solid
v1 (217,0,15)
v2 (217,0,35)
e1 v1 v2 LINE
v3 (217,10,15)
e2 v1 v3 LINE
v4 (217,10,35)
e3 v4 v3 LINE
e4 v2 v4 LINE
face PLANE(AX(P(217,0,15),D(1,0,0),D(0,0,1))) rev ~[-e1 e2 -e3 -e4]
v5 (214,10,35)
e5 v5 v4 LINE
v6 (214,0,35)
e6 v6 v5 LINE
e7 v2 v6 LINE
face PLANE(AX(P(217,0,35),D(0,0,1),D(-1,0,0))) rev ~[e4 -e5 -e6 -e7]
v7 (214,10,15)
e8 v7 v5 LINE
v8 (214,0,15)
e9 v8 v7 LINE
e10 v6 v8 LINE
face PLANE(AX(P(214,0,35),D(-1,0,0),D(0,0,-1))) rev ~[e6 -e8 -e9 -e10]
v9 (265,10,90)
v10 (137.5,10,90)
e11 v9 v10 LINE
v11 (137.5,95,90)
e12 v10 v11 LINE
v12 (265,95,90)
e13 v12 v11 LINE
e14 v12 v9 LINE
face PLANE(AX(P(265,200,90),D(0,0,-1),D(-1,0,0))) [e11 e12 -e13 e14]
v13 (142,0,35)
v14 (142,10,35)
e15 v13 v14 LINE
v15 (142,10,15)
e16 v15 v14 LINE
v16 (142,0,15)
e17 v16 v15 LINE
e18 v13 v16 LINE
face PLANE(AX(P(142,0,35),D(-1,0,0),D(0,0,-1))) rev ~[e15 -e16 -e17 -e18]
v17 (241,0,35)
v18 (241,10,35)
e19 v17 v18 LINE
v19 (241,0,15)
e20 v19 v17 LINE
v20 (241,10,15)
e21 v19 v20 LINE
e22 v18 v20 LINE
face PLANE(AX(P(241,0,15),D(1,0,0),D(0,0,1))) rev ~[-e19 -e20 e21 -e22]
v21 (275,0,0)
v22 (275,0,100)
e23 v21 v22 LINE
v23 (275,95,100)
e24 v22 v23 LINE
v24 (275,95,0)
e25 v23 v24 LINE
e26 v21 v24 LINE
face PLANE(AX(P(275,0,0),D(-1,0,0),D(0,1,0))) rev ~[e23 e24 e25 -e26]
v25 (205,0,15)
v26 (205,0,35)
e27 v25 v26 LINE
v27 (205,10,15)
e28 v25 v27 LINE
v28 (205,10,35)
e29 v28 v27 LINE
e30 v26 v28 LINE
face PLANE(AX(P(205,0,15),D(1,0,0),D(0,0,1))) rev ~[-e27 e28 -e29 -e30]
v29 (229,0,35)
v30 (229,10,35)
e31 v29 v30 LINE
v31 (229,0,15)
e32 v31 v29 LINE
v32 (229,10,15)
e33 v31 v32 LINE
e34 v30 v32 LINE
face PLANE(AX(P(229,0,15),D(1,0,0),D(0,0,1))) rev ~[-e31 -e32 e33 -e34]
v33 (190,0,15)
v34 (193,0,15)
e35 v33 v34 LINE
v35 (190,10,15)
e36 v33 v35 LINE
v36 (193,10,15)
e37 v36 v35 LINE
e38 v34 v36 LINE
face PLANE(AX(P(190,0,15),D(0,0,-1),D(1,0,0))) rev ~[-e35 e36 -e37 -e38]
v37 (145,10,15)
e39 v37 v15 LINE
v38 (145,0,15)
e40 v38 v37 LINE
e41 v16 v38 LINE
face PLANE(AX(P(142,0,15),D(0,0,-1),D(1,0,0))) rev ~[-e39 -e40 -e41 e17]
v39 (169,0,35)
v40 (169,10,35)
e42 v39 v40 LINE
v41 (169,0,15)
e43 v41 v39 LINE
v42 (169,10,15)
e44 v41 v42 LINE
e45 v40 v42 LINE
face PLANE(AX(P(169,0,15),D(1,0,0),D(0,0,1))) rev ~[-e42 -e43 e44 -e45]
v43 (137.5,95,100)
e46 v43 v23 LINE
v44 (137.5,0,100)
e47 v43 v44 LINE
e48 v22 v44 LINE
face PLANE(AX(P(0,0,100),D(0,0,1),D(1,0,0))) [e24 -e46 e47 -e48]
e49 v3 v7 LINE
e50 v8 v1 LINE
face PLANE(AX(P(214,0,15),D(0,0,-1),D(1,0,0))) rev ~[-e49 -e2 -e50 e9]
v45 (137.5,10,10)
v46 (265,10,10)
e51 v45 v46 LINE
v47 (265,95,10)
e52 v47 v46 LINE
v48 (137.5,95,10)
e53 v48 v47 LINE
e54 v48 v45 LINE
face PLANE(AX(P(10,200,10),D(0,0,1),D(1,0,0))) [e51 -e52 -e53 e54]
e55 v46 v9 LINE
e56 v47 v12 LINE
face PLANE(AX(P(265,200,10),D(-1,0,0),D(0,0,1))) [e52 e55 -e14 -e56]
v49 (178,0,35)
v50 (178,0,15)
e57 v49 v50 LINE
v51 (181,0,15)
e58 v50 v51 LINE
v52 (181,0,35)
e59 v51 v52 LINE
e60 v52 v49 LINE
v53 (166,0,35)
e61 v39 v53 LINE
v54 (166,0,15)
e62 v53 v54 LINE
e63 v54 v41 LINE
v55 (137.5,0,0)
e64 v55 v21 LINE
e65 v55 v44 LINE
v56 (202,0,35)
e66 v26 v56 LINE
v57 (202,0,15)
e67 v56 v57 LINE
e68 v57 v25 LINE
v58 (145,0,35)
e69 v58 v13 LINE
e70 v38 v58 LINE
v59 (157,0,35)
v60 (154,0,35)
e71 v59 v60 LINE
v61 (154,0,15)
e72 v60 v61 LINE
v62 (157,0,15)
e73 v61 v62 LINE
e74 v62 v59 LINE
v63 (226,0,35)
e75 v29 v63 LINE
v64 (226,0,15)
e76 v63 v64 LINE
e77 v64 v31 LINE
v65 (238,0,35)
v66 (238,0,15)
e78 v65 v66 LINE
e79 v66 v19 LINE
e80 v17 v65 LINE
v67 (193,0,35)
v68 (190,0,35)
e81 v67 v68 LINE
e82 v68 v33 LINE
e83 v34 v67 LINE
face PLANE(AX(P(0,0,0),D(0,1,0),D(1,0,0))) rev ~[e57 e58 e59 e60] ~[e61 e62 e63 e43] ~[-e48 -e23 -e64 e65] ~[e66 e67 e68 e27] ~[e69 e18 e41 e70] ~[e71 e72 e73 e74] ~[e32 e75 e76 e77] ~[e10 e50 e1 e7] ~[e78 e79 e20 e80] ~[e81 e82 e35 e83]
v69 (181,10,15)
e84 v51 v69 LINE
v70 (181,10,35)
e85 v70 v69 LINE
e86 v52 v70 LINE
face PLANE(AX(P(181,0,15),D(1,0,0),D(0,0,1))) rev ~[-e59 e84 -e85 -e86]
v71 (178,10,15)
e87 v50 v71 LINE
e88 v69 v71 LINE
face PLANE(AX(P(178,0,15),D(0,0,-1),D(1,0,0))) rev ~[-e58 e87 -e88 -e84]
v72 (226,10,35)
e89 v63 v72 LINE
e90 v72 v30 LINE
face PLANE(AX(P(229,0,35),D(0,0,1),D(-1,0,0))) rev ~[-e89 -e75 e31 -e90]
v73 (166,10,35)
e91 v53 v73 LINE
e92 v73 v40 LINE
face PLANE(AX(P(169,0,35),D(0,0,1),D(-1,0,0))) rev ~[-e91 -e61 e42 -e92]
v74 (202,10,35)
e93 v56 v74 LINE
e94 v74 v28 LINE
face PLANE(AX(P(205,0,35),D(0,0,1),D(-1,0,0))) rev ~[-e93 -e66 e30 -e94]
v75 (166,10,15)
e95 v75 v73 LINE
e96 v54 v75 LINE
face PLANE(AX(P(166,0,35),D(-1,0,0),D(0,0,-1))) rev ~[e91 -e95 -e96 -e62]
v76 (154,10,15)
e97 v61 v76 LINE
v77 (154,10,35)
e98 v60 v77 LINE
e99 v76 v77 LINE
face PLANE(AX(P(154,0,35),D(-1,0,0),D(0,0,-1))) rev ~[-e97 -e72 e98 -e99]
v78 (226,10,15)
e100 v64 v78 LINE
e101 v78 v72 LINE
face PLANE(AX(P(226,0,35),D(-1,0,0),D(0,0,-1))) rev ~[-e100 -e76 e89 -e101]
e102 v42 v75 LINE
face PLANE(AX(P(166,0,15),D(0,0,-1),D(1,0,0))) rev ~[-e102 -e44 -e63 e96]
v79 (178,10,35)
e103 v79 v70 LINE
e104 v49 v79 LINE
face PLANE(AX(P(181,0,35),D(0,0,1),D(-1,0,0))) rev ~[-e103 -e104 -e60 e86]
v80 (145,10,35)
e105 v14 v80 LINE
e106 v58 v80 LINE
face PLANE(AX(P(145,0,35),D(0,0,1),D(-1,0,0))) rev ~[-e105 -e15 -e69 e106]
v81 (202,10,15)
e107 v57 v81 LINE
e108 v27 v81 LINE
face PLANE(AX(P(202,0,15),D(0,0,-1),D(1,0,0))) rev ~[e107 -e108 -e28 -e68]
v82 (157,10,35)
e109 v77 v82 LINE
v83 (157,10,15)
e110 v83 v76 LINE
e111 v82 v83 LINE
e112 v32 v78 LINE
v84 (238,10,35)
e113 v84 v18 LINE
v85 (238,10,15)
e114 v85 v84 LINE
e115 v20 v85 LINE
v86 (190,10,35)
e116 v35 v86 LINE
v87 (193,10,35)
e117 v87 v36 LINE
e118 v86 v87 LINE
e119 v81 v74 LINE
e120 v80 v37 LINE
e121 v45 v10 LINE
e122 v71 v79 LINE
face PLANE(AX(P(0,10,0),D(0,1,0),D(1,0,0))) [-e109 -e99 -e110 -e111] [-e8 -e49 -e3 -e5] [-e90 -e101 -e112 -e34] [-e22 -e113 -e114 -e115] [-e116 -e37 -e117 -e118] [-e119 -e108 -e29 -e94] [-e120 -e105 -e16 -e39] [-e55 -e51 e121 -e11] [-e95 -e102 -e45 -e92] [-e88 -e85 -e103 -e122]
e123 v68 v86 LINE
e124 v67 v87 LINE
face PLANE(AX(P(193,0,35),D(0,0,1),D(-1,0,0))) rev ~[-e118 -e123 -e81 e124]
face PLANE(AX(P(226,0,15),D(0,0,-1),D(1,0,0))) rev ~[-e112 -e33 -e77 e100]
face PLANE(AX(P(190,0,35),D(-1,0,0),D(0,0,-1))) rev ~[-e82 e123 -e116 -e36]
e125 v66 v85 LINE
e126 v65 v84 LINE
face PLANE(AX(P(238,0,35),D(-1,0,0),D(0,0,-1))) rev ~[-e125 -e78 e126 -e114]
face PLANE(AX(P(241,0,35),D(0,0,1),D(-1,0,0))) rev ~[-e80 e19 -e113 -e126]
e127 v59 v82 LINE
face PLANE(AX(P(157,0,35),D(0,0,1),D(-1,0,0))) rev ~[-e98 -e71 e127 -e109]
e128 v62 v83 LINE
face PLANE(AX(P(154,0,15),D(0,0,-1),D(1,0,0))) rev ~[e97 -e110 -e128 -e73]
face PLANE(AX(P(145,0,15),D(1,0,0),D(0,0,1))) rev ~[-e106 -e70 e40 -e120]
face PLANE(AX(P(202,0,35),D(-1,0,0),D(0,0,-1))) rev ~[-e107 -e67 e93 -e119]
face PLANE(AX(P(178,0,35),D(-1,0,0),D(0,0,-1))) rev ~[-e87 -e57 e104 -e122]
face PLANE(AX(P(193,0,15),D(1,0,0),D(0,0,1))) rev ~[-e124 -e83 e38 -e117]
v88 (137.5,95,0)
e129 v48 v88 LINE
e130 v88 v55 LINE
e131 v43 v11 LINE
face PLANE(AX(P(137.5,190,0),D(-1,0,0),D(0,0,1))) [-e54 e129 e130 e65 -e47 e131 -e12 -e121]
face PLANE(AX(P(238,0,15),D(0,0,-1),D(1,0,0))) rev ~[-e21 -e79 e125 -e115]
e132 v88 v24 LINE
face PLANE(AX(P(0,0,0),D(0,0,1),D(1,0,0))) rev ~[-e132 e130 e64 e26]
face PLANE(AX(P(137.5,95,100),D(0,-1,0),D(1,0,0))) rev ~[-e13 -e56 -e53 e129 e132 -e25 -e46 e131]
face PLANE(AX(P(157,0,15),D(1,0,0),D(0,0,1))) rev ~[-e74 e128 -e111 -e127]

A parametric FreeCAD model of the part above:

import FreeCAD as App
import Part
import Sketcher


def add_polygon(sketch, points):
    """Adds a closed chain of lines whose ends are joined by coincident constraints."""
    first, n = sketch.GeometryCount, len(points)
    for a, b in zip(points, points[1:] + points[:1]):
        sketch.addGeometry(Part.LineSegment(App.Vector(*a, 0), App.Vector(*b, 0)), False)
    for i in range(n):
        sketch.addConstraint(Sketcher.Constraint("Coincident", first + i, 2, first + (i + 1) % n, 1))

doc = App.newDocument("Part")
body = doc.addObject("PartDesign::Body", "Body")

# Sketch on XY plane
sketch1 = doc.addObject("Sketcher::SketchObject", "Sketch")
body.addObject(sketch1)
sketch1.AttachmentSupport = (doc.XY_Plane, [""])
sketch1.MapMode = "FlatFace"
add_polygon(sketch1, [(0, 200), (0, 0), (275, 0), (275, 200)])  # lines 0-3
sketch1.addConstraint([
    Sketcher.Constraint("Vertical", 0),
    Sketcher.Constraint("Horizontal", 1),
    Sketcher.Constraint("Vertical", 2),
    Sketcher.Constraint("Horizontal", 3),
    Sketcher.Constraint("Coincident", 0, 2, -1, 1),
    Sketcher.Constraint("DistanceX", 1, 1, 1, 2, 275.0),
    Sketcher.Constraint("DistanceY", 0, 2, 0, 1, 200.0),
])
pad1 = doc.addObject("PartDesign::Pad", "Pad")
body.addObject(pad1)
pad1.Profile = sketch1
pad1.Length = 20

# Sketch on XY plane
sketch2 = doc.addObject("Sketcher::SketchObject", "Sketch001")
body.addObject(sketch2)
sketch2.AttachmentSupport = (doc.XY_Plane, [""])
sketch2.MapMode = "FlatFace"
sketch2.AttachmentOffset = App.Placement(App.Vector(0, 0, 20), App.Rotation())
add_polygon(sketch2, [(0, 0), (275, 0), (275, 200), (0, 200)])  # lines 0-3
sketch2.addConstraint([
    Sketcher.Constraint("Horizontal", 0),
    Sketcher.Constraint("Vertical", 1),
    Sketcher.Constraint("Horizontal", 2),
    Sketcher.Constraint("Vertical", 3),
    Sketcher.Constraint("Coincident", 3, 2, -1, 1),
    Sketcher.Constraint("DistanceX", 0, 1, 0, 2, 275.0),
    Sketcher.Constraint("DistanceY", 1, 1, 1, 2, 200.0),
])
pad2 = doc.addObject("PartDesign::Pad", "Pad001")
body.addObject(pad2)
pad2.Profile = sketch2
pad2.Length = 80

# Sketch on XZ plane
sketch3 = doc.addObject("Sketcher::SketchObject", "Sketch002")
body.addObject(sketch3)
sketch3.AttachmentSupport = (doc.XZ_Plane, [""])
sketch3.MapMode = "FlatFace"
sketch3.addGeometry(Part.Circle(App.Vector(47.5, 50, 0), App.Vector(0, 0, 1), 17.5), False)
sketch3.addConstraint([
    Sketcher.Constraint("Diameter", 0, 35.0),
    Sketcher.Constraint("DistanceY", -1, 1, 0, 3, 50.0),
    Sketcher.Constraint("DistanceX", -1, 1, 0, 3, 47.5),
])
pocket1 = doc.addObject("PartDesign::Pocket", "Pocket")
body.addObject(pocket1)
pocket1.Profile = sketch3
pocket1.Length = 100

# Sketch on XZ plane
sketch4 = doc.addObject("Sketcher::SketchObject", "Sketch003")
body.addObject(sketch4)
sketch4.AttachmentSupport = (doc.XZ_Plane, [""])
sketch4.MapMode = "FlatFace"
sketch4.AttachmentOffset = App.Placement(App.Vector(0, 0, -200), App.Rotation())
add_polygon(sketch4, [(10, 90), (265, 90), (265, 10), (10, 10)])  # lines 0-3
sketch4.addConstraint([
    Sketcher.Constraint("Horizontal", 0),
    Sketcher.Constraint("Vertical", 1),
    Sketcher.Constraint("Horizontal", 2),
    Sketcher.Constraint("Vertical", 3),
    Sketcher.Constraint("DistanceY", -1, 1, 1, 2, 10.0),
    Sketcher.Constraint("DistanceX", -1, 1, 2, 2, 10.0),
    Sketcher.Constraint("DistanceX", 0, 1, 0, 2, 255.0),
    Sketcher.Constraint("DistanceY", 1, 2, 1, 1, 80.0),
])
pocket2 = doc.addObject("PartDesign::Pocket", "Pocket001")
body.addObject(pocket2)
pocket2.Profile = sketch4
pocket2.Length = 190
pocket2.Reversed = True

# Sketch on YZ plane
sketch5 = doc.addObject("Sketcher::SketchObject", "Sketch004")
body.addObject(sketch5)
sketch5.AttachmentSupport = (doc.YZ_Plane, [""])
sketch5.MapMode = "FlatFace"
add_polygon(sketch5, [(200, 100), (200, 0), (190, 0), (190, 100)])  # lines 0-3
sketch5.addConstraint([
    Sketcher.Constraint("Vertical", 0),
    Sketcher.Constraint("Horizontal", 1),
    Sketcher.Constraint("Vertical", 2),
    Sketcher.Constraint("Horizontal", 3),
    Sketcher.Constraint("PointOnObject", 0, 2, -1),
    Sketcher.Constraint("DistanceX", 1, 2, 1, 1, 10.0),
    Sketcher.Constraint("DistanceY", 0, 2, 0, 1, 100.0),
    Sketcher.Constraint("DistanceX", -1, 1, 0, 2, 200.0),
])
pocket3 = doc.addObject("PartDesign::Pocket", "Pocket002")
body.addObject(pocket3)
pocket3.Profile = sketch5
pocket3.Type = "ThroughAll"
pocket3.Reversed = True

# Sketch on XZ plane
sketch6 = doc.addObject("Sketcher::SketchObject", "Sketch005")
body.addObject(sketch6)
sketch6.AttachmentSupport = (doc.XZ_Plane, [""])
sketch6.MapMode = "FlatFace"
sketch6.AttachmentOffset = App.Placement(App.Vector(0, 0, -190), App.Rotation())
sketch6.addGeometry([
    Part.Circle(App.Vector(270, 95, 0), App.Vector(0, 0, 1), 2.5),
    Part.Circle(App.Vector(270, 5, 0), App.Vector(0, 0, 1), 2.5),
    Part.Circle(App.Vector(5, 5, 0), App.Vector(0, 0, 1), 2.5),
    Part.Circle(App.Vector(5, 95, 0), App.Vector(0, 0, 1), 2.5),
], False)
sketch6.addConstraint([
    Sketcher.Constraint("Equal", 0, 1),
    Sketcher.Constraint("Equal", 1, 2),
    Sketcher.Constraint("Equal", 2, 3),
    Sketcher.Constraint("Horizontal", 1, 3, 2, 3),
    Sketcher.Constraint("Horizontal", 0, 3, 3, 3),
    Sketcher.Constraint("Vertical", 0, 3, 1, 3),
    Sketcher.Constraint("Vertical", 2, 3, 3, 3),
    Sketcher.Constraint("Diameter", 0, 5.0),
    Sketcher.Constraint("DistanceY", -1, 1, 1, 3, 5.0),
    Sketcher.Constraint("DistanceX", -1, 1, 2, 3, 5.0),
    Sketcher.Constraint("DistanceX", -1, 1, 0, 3, 270.0),
    Sketcher.Constraint("DistanceY", -1, 1, 0, 3, 95.0),
])
pocket4 = doc.addObject("PartDesign::Pocket", "Pocket003")
body.addObject(pocket4)
pocket4.Profile = sketch6
pocket4.Length = 25
pocket4.Reversed = True

# Sketch on XZ plane
sketch7 = doc.addObject("Sketcher::SketchObject", "Sketch006")
body.addObject(sketch7)
sketch7.AttachmentSupport = (doc.XZ_Plane, [""])
sketch7.MapMode = "FlatFace"
add_polygon(sketch7, [(82, 35), (82, 15), (85, 15), (85, 35)])  # lines 0-3
add_polygon(sketch7, [(94, 15), (97, 15), (97, 35), (94, 35)])  # lines 4-7
add_polygon(sketch7, [(106, 15), (109, 15), (109, 35), (106, 35)])  # lines 8-11
add_polygon(sketch7, [(118, 15), (121, 15), (121, 35), (118, 35)])  # lines 12-15
add_polygon(sketch7, [(130, 15), (133, 15), (133, 35), (130, 35)])  # lines 16-19
add_polygon(sketch7, [(142, 15), (145, 15), (145, 35), (142, 35)])  # lines 20-23
add_polygon(sketch7, [(154, 15), (157, 15), (157, 35), (154, 35)])  # lines 24-27
add_polygon(sketch7, [(166, 15), (169, 15), (169, 35), (166, 35)])  # lines 28-31
add_polygon(sketch7, [(178, 15), (181, 15), (181, 35), (178, 35)])  # lines 32-35
add_polygon(sketch7, [(190, 15), (193, 15), (193, 35), (190, 35)])  # lines 36-39
add_polygon(sketch7, [(202, 15), (205, 15), (205, 35), (202, 35)])  # lines 40-43
add_polygon(sketch7, [(214, 15), (217, 15), (217, 35), (214, 35)])  # lines 44-47
add_polygon(sketch7, [(226, 15), (229, 15), (229, 35), (226, 35)])  # lines 48-51
add_polygon(sketch7, [(238, 15), (241, 15), (241, 35), (238, 35)])  # lines 52-55
sketch7.addConstraint([
    Sketcher.Constraint("Vertical", 0),
    Sketcher.Constraint("Horizontal", 1),
    Sketcher.Constraint("Vertical", 2),
    Sketcher.Constraint("Horizontal", 3),
    Sketcher.Constraint("Horizontal", 4),
    Sketcher.Constraint("Vertical", 5),
    Sketcher.Constraint("Horizontal", 6),
    Sketcher.Constraint("Vertical", 7),
    Sketcher.Constraint("Horizontal", 8),
    Sketcher.Constraint("Vertical", 9),
    Sketcher.Constraint("Horizontal", 10),
    Sketcher.Constraint("Vertical", 11),
    Sketcher.Constraint("Horizontal", 12),
    Sketcher.Constraint("Vertical", 13),
    Sketcher.Constraint("Horizontal", 14),
    Sketcher.Constraint("Vertical", 15),
    Sketcher.Constraint("Horizontal", 16),
    Sketcher.Constraint("Vertical", 17),
    Sketcher.Constraint("Horizontal", 18),
    Sketcher.Constraint("Vertical", 19),
    Sketcher.Constraint("Horizontal", 20),
    Sketcher.Constraint("Vertical", 21),
    Sketcher.Constraint("Horizontal", 22),
    Sketcher.Constraint("Vertical", 23),
    Sketcher.Constraint("Horizontal", 24),
    Sketcher.Constraint("Vertical", 25),
    Sketcher.Constraint("Horizontal", 26),
    Sketcher.Constraint("Vertical", 27),
    Sketcher.Constraint("Horizontal", 28),
    Sketcher.Constraint("Vertical", 29),
    Sketcher.Constraint("Horizontal", 30),
    Sketcher.Constraint("Vertical", 31),
    Sketcher.Constraint("Horizontal", 32),
    Sketcher.Constraint("Vertical", 33),
    Sketcher.Constraint("Horizontal", 34),
    Sketcher.Constraint("Vertical", 35),
    Sketcher.Constraint("Horizontal", 36),
    Sketcher.Constraint("Vertical", 37),
    Sketcher.Constraint("Horizontal", 38),
    Sketcher.Constraint("Vertical", 39),
    Sketcher.Constraint("Horizontal", 40),
    Sketcher.Constraint("Vertical", 41),
    Sketcher.Constraint("Horizontal", 42),
    Sketcher.Constraint("Vertical", 43),
    Sketcher.Constraint("Horizontal", 44),
    Sketcher.Constraint("Vertical", 45),
    Sketcher.Constraint("Horizontal", 46),
    Sketcher.Constraint("Vertical", 47),
    Sketcher.Constraint("Horizontal", 48),
    Sketcher.Constraint("Vertical", 49),
    Sketcher.Constraint("Horizontal", 50),
    Sketcher.Constraint("Vertical", 51),
    Sketcher.Constraint("Horizontal", 52),
    Sketcher.Constraint("Vertical", 53),
    Sketcher.Constraint("Horizontal", 54),
    Sketcher.Constraint("Vertical", 55),
    Sketcher.Constraint("Horizontal", 1, 2, 4, 2),
    Sketcher.Constraint("Horizontal", 3, 2, 5, 2),
    Sketcher.Constraint("Horizontal", 7, 2, 8, 2),
    Sketcher.Constraint("Horizontal", 6, 2, 9, 2),
    Sketcher.Constraint("Horizontal", 11, 2, 12, 2),
    Sketcher.Constraint("Horizontal", 10, 2, 13, 2),
    Sketcher.Constraint("Horizontal", 15, 2, 16, 2),
    Sketcher.Constraint("Horizontal", 14, 2, 17, 2),
    Sketcher.Constraint("Horizontal", 19, 2, 20, 2),
    Sketcher.Constraint("Horizontal", 18, 2, 21, 2),
    Sketcher.Constraint("Horizontal", 23, 2, 24, 2),
    Sketcher.Constraint("Horizontal", 22, 2, 25, 2),
    Sketcher.Constraint("Horizontal", 27, 2, 28, 2),
    Sketcher.Constraint("Horizontal", 26, 2, 29, 2),
    Sketcher.Constraint("Horizontal", 31, 2, 32, 2),
    Sketcher.Constraint("Horizontal", 30, 2, 33, 2),
    Sketcher.Constraint("Horizontal", 35, 2, 36, 2),
    Sketcher.Constraint("Horizontal", 34, 2, 37, 2),
    Sketcher.Constraint("Horizontal", 39, 2, 40, 2),
    Sketcher.Constraint("Horizontal", 38, 2, 41, 2),
    Sketcher.Constraint("Horizontal", 43, 2, 44, 2),
    Sketcher.Constraint("Horizontal", 42, 2, 45, 2),
    Sketcher.Constraint("Horizontal", 47, 2, 48, 2),
    Sketcher.Constraint("Horizontal", 46, 2, 49, 2),
    Sketcher.Constraint("Horizontal", 51, 2, 52, 2),
    Sketcher.Constraint("Horizontal", 50, 2, 53, 2),
    Sketcher.Constraint("Equal", 3, 4),
    Sketcher.Constraint("Equal", 6, 8),
    Sketcher.Constraint("Equal", 10, 12),
    Sketcher.Constraint("Equal", 14, 16),
    Sketcher.Constraint("Equal", 18, 20),
    Sketcher.Constraint("Equal", 22, 24),
    Sketcher.Constraint("Equal", 26, 28),
    Sketcher.Constraint("Equal", 30, 32),
    Sketcher.Constraint("Equal", 34, 36),
    Sketcher.Constraint("Equal", 38, 40),
    Sketcher.Constraint("Equal", 42, 44),
    Sketcher.Constraint("Equal", 46, 48),
    Sketcher.Constraint("Equal", 50, 52),
    Sketcher.Constraint("DistanceX", 1, 1, 1, 2, 3.0),
    Sketcher.Constraint("DistanceY", 0, 2, 0, 1, 20.0),
    Sketcher.Constraint("DistanceX", -1, 1, 0, 2, 82.0),
    Sketcher.Constraint("DistanceY", -1, 1, 0, 2, 15.0),
    Sketcher.Constraint("DistanceX", 1, 2, 4, 2, 12.0),
    Sketcher.Constraint("DistanceX", 4, 2, 8, 2, 12.0),
    Sketcher.Constraint("DistanceX", 8, 2, 12, 2, 12.0),
    Sketcher.Constraint("DistanceX", 12, 2, 16, 2, 12.0),
    Sketcher.Constraint("DistanceX", 16, 2, 20, 2, 12.0),
    Sketcher.Constraint("DistanceX", 20, 2, 24, 2, 12.0),
    Sketcher.Constraint("DistanceX", 24, 2, 28, 2, 12.0),
    Sketcher.Constraint("DistanceX", 28, 2, 32, 2, 12.0),
    Sketcher.Constraint("DistanceX", 32, 2, 36, 2, 12.0),
    Sketcher.Constraint("DistanceX", 36, 2, 40, 2, 12.0),
    Sketcher.Constraint("DistanceX", 40, 2, 44, 2, 12.0),
    Sketcher.Constraint("DistanceX", 44, 2, 48, 2, 12.0),
    Sketcher.Constraint("DistanceX", 48, 2, 52, 2, 12.0),
])
pocket5 = doc.addObject("PartDesign::Pocket", "Pocket004")
body.addObject(pocket5)
pocket5.Profile = sketch7
pocket5.Type = "ThroughAll"

# Sketch on YZ plane
sketch8 = doc.addObject("Sketcher::SketchObject", "Sketch007")
body.addObject(sketch8)
sketch8.AttachmentSupport = (doc.YZ_Plane, [""])
sketch8.MapMode = "FlatFace"
sketch8.AttachmentOffset = App.Placement(App.Vector(0, 0, 275), App.Rotation())
sketch8.addGeometry(Part.Circle(App.Vector(125, 30, 0), App.Vector(0, 0, 1), 3), False)
sketch8.addConstraint([
    Sketcher.Constraint("Diameter", 0, 6.0),
    Sketcher.Constraint("DistanceX", -1, 1, 0, 3, 125.0),
    Sketcher.Constraint("DistanceY", -1, 1, 0, 3, 30.0),
])
pocket6 = doc.addObject("PartDesign::Pocket", "Pocket005")
body.addObject(pocket6)
pocket6.Profile = sketch8
pocket6.Type = "ThroughAll"

# Sketch on XZ plane
sketch9 = doc.addObject("Sketcher::SketchObject", "Sketch008")
body.addObject(sketch9)
sketch9.AttachmentSupport = (doc.XZ_Plane, [""])
sketch9.MapMode = "FlatFace"
sketch9.AttachmentOffset = App.Placement(App.Vector(0, 0, -190), App.Rotation())
add_polygon(sketch9, [(137.5, 0), (0, 0), (0, 100), (137.5, 100)])  # lines 0-3
sketch9.addConstraint([
    Sketcher.Constraint("Horizontal", 0),
    Sketcher.Constraint("Vertical", 1),
    Sketcher.Constraint("Horizontal", 2),
    Sketcher.Constraint("Vertical", 3),
    Sketcher.Constraint("Coincident", 0, 2, -1, 1),
    Sketcher.Constraint("DistanceY", 1, 1, 1, 2, 100.0),
    Sketcher.Constraint("DistanceX", 0, 2, 0, 1, 137.5),
])
pocket7 = doc.addObject("PartDesign::Pocket", "Pocket006")
body.addObject(pocket7)
pocket7.Profile = sketch9
pocket7.Type = "ThroughAll"
pocket7.Reversed = True

# Sketch on XY plane
sketch10 = doc.addObject("Sketcher::SketchObject", "Sketch009")
body.addObject(sketch10)
sketch10.AttachmentSupport = (doc.XY_Plane, [""])
sketch10.MapMode = "FlatFace"
sketch10.AttachmentOffset = App.Placement(App.Vector(0, 0, 100), App.Rotation())
add_polygon(sketch10, [(137.5, 95), (275, 95), (275, 190), (137.5, 190)])  # lines 0-3
sketch10.addConstraint([
    Sketcher.Constraint("Horizontal", 0),
    Sketcher.Constraint("Vertical", 1),
    Sketcher.Constraint("Horizontal", 2),
    Sketcher.Constraint("Vertical", 3),
    Sketcher.Constraint("DistanceY", 1, 1, 1, 2, 95.0),
    Sketcher.Constraint("DistanceY", -1, 1, 0, 2, 95.0),
    Sketcher.Constraint("DistanceX", 0, 1, 0, 2, 137.5),
    Sketcher.Constraint("DistanceX", -1, 1, 0, 2, 275.0),
])
pocket8 = doc.addObject("PartDesign::Pocket", "Pocket007")
body.addObject(pocket8)
pocket8.Profile = sketch10
pocket8.Type = "ThroughAll"

doc.recompute()
